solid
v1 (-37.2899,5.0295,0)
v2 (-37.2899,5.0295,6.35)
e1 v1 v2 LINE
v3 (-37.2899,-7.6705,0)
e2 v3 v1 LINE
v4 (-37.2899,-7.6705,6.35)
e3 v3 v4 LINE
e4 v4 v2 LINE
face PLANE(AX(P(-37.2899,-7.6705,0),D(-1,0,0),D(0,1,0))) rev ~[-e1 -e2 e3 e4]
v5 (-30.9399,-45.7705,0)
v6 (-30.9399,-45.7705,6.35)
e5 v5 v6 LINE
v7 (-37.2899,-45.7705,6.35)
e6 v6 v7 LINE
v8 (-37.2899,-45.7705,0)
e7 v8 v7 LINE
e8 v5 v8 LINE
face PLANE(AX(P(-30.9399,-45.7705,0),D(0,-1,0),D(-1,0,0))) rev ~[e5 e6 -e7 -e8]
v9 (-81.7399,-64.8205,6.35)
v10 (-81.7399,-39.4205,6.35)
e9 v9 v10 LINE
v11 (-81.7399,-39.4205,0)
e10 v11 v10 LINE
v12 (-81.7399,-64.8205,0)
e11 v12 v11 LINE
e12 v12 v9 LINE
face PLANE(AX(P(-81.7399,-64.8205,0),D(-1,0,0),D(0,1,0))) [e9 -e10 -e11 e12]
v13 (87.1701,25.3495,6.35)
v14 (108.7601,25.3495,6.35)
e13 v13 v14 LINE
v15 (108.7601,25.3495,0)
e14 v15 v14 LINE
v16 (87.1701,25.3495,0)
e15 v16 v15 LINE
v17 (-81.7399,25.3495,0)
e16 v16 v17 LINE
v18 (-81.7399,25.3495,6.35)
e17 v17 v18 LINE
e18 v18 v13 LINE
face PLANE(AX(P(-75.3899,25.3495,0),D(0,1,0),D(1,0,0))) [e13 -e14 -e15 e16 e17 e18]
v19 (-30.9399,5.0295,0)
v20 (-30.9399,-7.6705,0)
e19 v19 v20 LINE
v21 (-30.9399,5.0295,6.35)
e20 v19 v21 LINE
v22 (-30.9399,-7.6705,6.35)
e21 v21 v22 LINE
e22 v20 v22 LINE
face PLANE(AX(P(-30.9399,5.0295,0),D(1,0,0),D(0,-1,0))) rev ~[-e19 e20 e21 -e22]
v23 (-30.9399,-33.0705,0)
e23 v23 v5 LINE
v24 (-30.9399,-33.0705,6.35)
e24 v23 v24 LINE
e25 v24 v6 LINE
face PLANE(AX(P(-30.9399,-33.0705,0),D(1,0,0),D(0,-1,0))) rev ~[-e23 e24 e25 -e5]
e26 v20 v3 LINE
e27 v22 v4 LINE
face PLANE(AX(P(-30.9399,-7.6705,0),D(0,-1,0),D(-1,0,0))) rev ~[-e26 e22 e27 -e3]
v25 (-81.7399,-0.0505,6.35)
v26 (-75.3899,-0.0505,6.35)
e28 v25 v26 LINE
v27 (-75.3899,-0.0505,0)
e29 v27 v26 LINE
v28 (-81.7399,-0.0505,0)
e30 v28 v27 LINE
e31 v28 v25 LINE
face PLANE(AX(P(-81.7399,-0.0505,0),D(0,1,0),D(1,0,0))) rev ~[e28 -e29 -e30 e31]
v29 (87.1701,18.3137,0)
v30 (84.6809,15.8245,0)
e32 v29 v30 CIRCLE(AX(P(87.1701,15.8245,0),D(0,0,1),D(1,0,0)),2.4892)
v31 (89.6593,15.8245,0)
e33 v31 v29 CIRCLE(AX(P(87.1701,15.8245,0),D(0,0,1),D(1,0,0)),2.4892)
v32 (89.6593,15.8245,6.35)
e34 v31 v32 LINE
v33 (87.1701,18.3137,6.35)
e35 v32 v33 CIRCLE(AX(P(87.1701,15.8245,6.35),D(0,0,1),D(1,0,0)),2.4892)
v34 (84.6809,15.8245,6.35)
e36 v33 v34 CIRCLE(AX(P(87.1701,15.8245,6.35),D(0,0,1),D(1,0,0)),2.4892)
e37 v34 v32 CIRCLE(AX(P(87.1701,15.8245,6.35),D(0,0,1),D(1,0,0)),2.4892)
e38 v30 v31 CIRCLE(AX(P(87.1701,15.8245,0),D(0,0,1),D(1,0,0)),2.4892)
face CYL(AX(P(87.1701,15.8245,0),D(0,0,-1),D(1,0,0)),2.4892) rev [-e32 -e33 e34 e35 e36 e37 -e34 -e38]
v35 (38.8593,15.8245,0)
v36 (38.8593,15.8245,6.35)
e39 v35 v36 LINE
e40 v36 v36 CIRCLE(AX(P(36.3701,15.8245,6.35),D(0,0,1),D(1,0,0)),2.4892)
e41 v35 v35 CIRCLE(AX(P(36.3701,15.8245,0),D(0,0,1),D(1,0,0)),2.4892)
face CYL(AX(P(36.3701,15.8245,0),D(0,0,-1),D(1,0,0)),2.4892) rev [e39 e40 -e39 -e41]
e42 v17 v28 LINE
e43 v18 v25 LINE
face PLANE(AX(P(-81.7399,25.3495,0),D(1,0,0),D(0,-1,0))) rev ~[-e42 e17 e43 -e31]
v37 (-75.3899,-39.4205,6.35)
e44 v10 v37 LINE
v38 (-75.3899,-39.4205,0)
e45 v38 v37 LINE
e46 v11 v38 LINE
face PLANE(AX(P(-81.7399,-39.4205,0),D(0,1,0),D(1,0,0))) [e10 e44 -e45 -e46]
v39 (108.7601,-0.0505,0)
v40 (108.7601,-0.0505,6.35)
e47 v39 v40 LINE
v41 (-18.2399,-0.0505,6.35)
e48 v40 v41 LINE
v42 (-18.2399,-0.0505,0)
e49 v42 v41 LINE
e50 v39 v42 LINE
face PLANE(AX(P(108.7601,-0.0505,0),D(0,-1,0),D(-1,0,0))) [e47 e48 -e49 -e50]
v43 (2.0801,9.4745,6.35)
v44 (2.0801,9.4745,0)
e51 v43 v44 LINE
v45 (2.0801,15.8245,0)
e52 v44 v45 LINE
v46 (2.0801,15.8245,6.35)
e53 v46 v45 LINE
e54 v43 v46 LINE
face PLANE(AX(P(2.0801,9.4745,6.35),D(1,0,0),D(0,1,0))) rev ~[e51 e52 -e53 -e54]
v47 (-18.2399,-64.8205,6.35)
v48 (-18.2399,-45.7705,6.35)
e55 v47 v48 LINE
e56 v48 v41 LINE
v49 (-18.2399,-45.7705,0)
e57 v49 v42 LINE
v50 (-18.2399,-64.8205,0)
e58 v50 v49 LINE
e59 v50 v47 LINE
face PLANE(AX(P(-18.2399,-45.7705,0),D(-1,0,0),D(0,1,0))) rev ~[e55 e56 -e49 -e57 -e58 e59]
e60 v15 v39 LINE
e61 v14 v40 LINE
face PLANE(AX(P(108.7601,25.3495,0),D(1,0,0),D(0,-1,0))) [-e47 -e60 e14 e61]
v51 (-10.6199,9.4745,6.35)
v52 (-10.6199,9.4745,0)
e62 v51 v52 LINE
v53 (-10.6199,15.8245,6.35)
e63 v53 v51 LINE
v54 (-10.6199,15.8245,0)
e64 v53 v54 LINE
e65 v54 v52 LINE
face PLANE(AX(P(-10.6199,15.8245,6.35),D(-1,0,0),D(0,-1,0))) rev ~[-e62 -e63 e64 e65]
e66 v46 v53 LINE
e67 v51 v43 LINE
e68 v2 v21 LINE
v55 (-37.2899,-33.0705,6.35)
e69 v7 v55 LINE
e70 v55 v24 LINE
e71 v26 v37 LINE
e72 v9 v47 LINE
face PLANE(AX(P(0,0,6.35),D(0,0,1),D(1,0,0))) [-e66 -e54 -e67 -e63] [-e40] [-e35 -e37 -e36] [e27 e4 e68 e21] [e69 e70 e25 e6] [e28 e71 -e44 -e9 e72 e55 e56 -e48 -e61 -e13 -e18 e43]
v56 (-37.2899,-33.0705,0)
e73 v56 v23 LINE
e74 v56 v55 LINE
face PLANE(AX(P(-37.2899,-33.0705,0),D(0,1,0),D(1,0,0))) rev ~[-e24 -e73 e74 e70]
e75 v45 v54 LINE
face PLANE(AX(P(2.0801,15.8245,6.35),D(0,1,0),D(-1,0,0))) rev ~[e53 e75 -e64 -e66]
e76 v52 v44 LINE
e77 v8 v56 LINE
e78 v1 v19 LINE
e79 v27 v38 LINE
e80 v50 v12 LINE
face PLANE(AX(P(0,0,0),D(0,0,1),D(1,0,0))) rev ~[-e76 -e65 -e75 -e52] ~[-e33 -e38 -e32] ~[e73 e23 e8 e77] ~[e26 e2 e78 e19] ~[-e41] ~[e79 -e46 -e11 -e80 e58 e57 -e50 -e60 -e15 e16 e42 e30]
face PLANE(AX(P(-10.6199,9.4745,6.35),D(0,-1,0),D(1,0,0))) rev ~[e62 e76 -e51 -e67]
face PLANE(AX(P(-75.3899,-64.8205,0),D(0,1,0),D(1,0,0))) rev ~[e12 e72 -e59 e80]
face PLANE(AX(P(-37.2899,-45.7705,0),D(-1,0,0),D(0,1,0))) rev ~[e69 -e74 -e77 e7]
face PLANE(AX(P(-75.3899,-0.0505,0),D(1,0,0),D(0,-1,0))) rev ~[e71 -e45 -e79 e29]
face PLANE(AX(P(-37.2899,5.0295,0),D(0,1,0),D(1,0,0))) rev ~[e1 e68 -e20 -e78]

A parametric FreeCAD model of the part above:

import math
import FreeCAD as App
import Part
import Sketcher
Q = App.Units.Quantity


def add_polygon(sketch, points):
    """Adds a closed chain of lines whose ends are joined by coincident constraints."""
    first, n = sketch.GeometryCount, len(points)
    for a, b in zip(points, points[1:] + points[:1]):
        sketch.addGeometry(Part.LineSegment(App.Vector(*a, 0), App.Vector(*b, 0)), False)
    for i in range(n):
        sketch.addConstraint(Sketcher.Constraint("Coincident", first + i, 2, first + (i + 1) % n, 1))

doc = App.newDocument("Part")
body = doc.addObject("PartDesign::Body", "Body")

# Sketch on XY plane
sketch1 = doc.addObject("Sketcher::SketchObject", "Sketch")
body.addObject(sketch1)
sketch1.AttachmentSupport = (doc.XY_Plane, [""])
sketch1.MapMode = "FlatFace"
add_polygon(sketch1, [(87.2, 25.3), (-81.7, 25.3), (-81.7, -0.1), (-75.4, -0.1), (-75.4, -39.4), (-81.7, -39.4), (-81.7, -64.8), (-18.2, -64.8), (-18.2, -45.8), (-18.2, -0.1), (108.8, -0.1), (108.8, 25.3)])  # lines 0-11
add_polygon(sketch1, [(-30.9, -33.1), (-30.9, -45.8), (-37.3, -45.8), (-37.3, -33.1)])  # lines 12-15
add_polygon(sketch1, [(-30.9, 5), (-30.9, -7.7), (-37.3, -7.7), (-37.3, 5)])  # lines 16-19
sketch1.addGeometry(Part.Circle(App.Vector(36.4, 15.8, 0), App.Vector(0, 0, 1), 2.5), False)  # 20
sketch1.addGeometry(Part.ArcOfCircle(Part.Circle(App.Vector(87.2, 15.8, 0), App.Vector(0, 0, 1), 2.5), math.radians(90), math.radians(180)), False)  # 21
sketch1.addGeometry(Part.ArcOfCircle(Part.Circle(App.Vector(87.2, 15.8, 0), App.Vector(0, 0, 1), 2.5), math.radians(180), math.radians(450)), False)  # 22
sketch1.addConstraint([
    Sketcher.Constraint("Tangent", 21, 1, 22, 2),
    Sketcher.Constraint("Coincident", 22, 1, 21, 2),
    Sketcher.Constraint("Horizontal", 0),
    Sketcher.Constraint("Vertical", 1),
    Sketcher.Constraint("Horizontal", 2),
    Sketcher.Constraint("Vertical", 3),
    Sketcher.Constraint("Horizontal", 4),
    Sketcher.Constraint("Vertical", 5),
    Sketcher.Constraint("Horizontal", 6),
    Sketcher.Constraint("Vertical", 7),
    Sketcher.Constraint("Vertical", 8),
    Sketcher.Constraint("Horizontal", 9),
    Sketcher.Constraint("Vertical", 10),
    Sketcher.Constraint("Horizontal", 11),
    Sketcher.Constraint("Vertical", 12),
    Sketcher.Constraint("Horizontal", 13),
    Sketcher.Constraint("Vertical", 14),
    Sketcher.Constraint("Horizontal", 15),
    Sketcher.Constraint("Vertical", 16),
    Sketcher.Constraint("Horizontal", 17),
    Sketcher.Constraint("Vertical", 18),
    Sketcher.Constraint("Horizontal", 19),
    Sketcher.Constraint("Equal", 20, 21),
    Sketcher.Constraint("Horizontal", 20, 3, 21, 3),
    Sketcher.Constraint("Horizontal", 2, 2, 8, 2),
    Sketcher.Constraint("Horizontal", 7, 2, 12, 2),
    Sketcher.Constraint("Horizontal", 21, 3, 22, 1),
    Sketcher.Constraint("Vertical", 1, 2, 4, 2),
    Sketcher.Constraint("Vertical", 22, 3, 11, 2),
    Sketcher.Constraint("Vertical", 15, 2, 16, 2),
    Sketcher.Constraint("Vertical", 14, 2, 17, 2),
    Sketcher.Constraint("Vertical", 11, 2, 21, 1),
    Sketcher.Constraint("Equal", 4, 13),
    Sketcher.Constraint("Equal", 1, 5),
    Sketcher.Constraint("Equal", 14, 16),
    Sketcher.Constraint("DistanceX", 9, 1, 9, 2, Q("5 in")),
    Sketcher.Constraint("DistanceY", 1, 2, 1, 1, Q("1 in")),
    Sketcher.Constraint("Diameter", 20, Q("0.196 in")),
    Sketcher.Constraint("DistanceY", 12, 2, 12, 1, Q("0.5 in")),
    Sketcher.Constraint("DistanceX", 20, 3, 21, 3, Q("2 in")),
    Sketcher.Constraint("DistanceX", 4, 2, 12, 2, Q("2 in")),
    Sketcher.Constraint("DistanceY", 15, 2, 16, 2, Q("1 in")),
    Sketcher.Constraint("DistanceX", 2, 1, 2, 2, Q("0.25 in")),
    Sketcher.Constraint("DistanceX", 11, 2, 11, 1, Q("0.85 in")),
    Sketcher.Constraint("DistanceY", 7, 1, 7, 2, Q("0.75 in")),
    Sketcher.Constraint("DistanceX", 12, 2, 7, 2, Q("0.5 in")),
    Sketcher.Constraint("DistanceY", 5, 2, 0, 2, Q("3.55 in")),
    Sketcher.Constraint("DistanceY", 20, 3, 0, 2, Q("0.375 in")),
    Sketcher.Constraint("DistanceY", -1, 1, 20, 3, Q("0.623 in")),
    Sketcher.Constraint("DistanceX", -1, 1, 20, 3, Q("1.4319 in")),
])
pad1 = doc.addObject("PartDesign::Pad", "Pad")
body.addObject(pad1)
pad1.Profile = sketch1
pad1.Length = Q("0.25 in")

# Sketch on XY plane
sketch2 = doc.addObject("Sketcher::SketchObject", "Sketch001")
body.addObject(sketch2)
sketch2.AttachmentSupport = (doc.XY_Plane, [""])
sketch2.MapMode = "FlatFace"
sketch2.AttachmentOffset = App.Placement(App.Vector(0, 0, 0.25 * 25.4), App.Rotation())
add_polygon(sketch2, [(2, 9), (2, 16), (-11, 16), (-11, 9)])  # lines 0-3
sketch2.addConstraint([
    Sketcher.Constraint("Vertical", 0),
    Sketcher.Constraint("Horizontal", 1),
    Sketcher.Constraint("Vertical", 2),
    Sketcher.Constraint("Horizontal", 3),
    Sketcher.Constraint("DistanceX", 1, 2, 1, 1, Q("0.5 in")),
    Sketcher.Constraint("DistanceY", 0, 1, 0, 2, Q("0.25 in")),
    Sketcher.Constraint("DistanceY", -1, 1, 0, 2, Q("0.623 in")),
    Sketcher.Constraint("DistanceX", -1, 1, 0, 2, Q("0.0819 in")),
])
pocket1 = doc.addObject("PartDesign::Pocket", "Pocket")
body.addObject(pocket1)
pocket1.Profile = sketch2
pocket1.Length = Q("1 in")

doc.recompute()
